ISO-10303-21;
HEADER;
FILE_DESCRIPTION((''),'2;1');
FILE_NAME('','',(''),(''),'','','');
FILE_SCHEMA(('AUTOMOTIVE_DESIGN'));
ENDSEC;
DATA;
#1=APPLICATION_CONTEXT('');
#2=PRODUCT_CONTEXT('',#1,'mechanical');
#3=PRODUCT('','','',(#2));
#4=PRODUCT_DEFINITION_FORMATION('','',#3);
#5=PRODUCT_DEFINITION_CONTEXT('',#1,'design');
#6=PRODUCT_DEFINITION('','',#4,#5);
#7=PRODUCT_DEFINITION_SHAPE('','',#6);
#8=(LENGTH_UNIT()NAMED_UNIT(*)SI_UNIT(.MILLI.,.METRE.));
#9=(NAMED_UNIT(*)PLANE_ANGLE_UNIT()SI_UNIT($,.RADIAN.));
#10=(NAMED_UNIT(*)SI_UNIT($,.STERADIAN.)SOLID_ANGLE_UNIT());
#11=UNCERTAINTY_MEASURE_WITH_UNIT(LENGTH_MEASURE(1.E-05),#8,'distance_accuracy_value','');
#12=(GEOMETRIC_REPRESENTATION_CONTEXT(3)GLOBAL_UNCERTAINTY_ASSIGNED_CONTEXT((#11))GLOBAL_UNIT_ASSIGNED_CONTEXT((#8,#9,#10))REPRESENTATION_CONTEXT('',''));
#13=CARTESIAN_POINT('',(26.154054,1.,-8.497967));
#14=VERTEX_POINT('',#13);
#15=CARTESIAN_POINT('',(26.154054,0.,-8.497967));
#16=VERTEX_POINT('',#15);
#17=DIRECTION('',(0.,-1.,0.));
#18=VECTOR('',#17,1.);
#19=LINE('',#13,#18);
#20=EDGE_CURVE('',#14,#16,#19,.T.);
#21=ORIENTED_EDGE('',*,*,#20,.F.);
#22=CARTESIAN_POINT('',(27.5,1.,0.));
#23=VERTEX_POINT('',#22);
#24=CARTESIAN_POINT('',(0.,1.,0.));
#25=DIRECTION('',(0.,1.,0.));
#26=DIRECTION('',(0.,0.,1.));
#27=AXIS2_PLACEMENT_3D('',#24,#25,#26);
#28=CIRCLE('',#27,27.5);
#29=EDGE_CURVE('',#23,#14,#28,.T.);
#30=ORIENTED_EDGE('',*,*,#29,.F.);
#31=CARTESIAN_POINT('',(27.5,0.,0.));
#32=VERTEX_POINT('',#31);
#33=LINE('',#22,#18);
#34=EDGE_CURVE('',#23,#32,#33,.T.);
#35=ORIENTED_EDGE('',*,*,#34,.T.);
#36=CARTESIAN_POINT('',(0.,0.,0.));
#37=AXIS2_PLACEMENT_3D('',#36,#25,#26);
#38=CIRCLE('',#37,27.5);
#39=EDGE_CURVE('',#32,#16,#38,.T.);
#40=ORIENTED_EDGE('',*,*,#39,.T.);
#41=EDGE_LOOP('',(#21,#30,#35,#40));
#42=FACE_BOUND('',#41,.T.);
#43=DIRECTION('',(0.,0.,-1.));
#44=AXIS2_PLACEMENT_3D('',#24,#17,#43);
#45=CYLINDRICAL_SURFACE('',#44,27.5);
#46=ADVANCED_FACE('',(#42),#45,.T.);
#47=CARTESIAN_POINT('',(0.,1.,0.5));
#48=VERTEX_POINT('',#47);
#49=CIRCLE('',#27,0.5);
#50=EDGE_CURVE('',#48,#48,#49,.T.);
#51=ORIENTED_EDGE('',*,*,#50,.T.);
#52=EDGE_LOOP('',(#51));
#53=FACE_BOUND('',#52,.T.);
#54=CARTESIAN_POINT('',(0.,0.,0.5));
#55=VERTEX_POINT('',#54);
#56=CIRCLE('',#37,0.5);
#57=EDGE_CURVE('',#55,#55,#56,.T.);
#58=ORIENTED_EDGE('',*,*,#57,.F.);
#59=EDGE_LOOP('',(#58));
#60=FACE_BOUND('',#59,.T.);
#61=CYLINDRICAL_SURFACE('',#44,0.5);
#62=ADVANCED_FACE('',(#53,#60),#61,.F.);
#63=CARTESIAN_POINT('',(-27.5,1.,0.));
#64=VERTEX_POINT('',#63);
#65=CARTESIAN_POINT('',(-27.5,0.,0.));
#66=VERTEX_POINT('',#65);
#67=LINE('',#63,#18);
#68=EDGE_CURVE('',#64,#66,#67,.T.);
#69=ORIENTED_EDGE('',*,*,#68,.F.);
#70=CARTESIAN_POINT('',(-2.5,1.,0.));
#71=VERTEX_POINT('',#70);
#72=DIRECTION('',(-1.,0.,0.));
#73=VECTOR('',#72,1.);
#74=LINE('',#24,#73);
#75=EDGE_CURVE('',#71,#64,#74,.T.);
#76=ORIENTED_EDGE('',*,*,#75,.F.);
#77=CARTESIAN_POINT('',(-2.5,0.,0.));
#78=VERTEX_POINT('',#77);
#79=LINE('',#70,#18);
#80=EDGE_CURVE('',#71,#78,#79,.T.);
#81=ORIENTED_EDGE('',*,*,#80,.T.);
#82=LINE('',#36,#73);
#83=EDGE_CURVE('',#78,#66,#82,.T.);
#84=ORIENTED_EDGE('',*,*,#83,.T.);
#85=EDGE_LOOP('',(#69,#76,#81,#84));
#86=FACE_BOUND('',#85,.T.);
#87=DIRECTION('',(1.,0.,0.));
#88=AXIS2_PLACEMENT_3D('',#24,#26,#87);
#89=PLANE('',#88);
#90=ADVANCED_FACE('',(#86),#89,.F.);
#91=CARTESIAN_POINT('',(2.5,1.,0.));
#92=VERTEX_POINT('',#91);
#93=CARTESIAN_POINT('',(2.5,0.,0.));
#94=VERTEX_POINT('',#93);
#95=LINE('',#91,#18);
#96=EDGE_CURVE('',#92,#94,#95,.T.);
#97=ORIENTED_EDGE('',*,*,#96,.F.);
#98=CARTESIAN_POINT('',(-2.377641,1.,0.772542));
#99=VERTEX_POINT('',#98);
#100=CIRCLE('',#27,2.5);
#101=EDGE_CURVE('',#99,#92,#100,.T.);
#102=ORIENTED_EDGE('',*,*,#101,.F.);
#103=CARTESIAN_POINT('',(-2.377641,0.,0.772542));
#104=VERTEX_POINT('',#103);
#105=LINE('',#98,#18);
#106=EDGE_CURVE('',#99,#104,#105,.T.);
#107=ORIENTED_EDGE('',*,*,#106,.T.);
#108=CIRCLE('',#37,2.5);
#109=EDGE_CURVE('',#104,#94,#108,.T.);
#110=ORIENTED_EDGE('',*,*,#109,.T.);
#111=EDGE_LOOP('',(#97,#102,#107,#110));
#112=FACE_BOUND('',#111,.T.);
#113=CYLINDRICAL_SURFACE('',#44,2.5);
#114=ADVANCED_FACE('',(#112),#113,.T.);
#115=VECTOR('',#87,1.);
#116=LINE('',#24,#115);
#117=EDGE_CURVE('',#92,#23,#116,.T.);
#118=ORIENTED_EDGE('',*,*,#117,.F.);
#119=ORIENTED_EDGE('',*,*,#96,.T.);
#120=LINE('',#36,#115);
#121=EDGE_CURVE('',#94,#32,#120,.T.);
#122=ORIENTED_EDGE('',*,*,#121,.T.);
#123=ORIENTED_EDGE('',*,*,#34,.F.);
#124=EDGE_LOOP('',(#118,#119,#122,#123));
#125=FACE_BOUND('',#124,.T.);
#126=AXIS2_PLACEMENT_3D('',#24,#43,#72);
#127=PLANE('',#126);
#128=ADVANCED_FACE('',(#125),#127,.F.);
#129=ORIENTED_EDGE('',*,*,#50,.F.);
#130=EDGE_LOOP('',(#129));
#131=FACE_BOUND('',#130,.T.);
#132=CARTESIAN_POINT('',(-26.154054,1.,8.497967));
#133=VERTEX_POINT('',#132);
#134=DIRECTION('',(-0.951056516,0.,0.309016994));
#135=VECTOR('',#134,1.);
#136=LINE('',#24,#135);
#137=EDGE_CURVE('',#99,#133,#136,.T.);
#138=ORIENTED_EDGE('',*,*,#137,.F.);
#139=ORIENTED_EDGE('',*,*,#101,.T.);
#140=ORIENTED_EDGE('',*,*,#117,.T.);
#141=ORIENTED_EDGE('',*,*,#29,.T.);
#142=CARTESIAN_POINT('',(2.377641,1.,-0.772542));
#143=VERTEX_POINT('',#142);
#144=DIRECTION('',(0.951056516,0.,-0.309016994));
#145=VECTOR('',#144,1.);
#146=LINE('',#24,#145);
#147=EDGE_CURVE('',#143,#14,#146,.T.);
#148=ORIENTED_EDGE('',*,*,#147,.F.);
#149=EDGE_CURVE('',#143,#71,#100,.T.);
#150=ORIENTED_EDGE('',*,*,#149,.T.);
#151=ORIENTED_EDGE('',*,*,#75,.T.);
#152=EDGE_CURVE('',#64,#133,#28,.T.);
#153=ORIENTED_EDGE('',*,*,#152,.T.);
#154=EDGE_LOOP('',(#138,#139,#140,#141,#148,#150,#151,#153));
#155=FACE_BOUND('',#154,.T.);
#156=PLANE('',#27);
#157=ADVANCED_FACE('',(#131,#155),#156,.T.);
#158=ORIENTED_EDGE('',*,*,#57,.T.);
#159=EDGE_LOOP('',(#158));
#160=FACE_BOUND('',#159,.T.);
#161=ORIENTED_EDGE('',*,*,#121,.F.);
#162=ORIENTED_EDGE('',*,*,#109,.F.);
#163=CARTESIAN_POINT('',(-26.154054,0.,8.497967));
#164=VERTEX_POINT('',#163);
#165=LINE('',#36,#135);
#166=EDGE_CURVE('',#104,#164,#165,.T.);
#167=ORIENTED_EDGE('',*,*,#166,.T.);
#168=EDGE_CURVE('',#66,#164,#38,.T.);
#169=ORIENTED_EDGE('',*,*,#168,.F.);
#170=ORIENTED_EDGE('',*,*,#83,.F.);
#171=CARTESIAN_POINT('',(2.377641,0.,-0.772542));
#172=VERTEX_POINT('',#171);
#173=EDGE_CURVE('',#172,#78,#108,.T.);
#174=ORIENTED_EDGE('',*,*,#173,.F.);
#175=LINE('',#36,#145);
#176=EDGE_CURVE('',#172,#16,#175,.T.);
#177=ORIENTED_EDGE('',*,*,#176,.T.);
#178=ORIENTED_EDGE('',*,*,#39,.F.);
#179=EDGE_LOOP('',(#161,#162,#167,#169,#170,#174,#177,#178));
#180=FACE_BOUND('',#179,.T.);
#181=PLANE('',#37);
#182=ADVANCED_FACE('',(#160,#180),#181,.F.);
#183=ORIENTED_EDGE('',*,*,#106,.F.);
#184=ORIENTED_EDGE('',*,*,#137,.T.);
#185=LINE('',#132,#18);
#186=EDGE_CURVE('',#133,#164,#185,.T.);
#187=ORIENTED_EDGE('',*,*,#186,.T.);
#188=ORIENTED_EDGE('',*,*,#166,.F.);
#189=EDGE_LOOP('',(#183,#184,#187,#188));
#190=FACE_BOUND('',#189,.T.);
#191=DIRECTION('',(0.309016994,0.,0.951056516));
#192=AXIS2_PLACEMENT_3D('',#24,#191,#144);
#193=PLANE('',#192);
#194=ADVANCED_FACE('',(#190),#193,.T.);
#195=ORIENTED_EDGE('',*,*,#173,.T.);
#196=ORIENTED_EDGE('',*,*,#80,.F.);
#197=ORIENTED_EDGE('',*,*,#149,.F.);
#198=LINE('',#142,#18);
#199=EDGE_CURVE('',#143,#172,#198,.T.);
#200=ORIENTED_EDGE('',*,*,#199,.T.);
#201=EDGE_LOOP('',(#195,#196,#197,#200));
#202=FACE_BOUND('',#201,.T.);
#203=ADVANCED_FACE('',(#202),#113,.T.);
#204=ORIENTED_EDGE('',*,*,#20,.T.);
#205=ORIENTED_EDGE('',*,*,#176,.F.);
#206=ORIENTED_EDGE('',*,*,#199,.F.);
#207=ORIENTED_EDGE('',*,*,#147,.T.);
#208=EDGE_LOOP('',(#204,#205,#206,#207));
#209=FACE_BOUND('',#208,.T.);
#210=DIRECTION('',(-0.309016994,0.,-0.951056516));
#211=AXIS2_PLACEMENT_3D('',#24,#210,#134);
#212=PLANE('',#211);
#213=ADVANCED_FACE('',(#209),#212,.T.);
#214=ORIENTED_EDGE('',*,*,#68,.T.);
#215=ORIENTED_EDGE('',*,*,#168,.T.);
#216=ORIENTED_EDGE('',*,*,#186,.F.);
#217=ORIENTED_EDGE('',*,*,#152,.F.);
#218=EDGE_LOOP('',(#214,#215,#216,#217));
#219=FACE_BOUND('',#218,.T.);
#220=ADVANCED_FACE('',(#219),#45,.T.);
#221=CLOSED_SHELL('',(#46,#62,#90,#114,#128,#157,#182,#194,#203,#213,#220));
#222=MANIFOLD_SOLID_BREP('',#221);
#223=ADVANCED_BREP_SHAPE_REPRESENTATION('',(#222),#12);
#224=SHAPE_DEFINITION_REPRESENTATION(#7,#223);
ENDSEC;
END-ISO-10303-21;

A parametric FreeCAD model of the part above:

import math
import FreeCAD as App
import Part
import Sketcher

V = App.Vector
Q = App.Units.Quantity

doc = App.newDocument("Part")
body = doc.addObject("PartDesign::Body", "Body")

# Sketch on XZ plane
sketch1 = body.newObject("Sketcher::SketchObject", "Sketch")
sketch1.AttachmentSupport = (doc.getObject("XZ_Plane"), [""])
sketch1.MapMode = "FlatFace"
sketch1.addGeometry([
    Part.LineSegment(V(-26.2, 8.5, 0), V(-2.4, 0.8, 0)),  # 0
    Part.ArcOfCircle(Part.Circle(V(0, 0, 0), V(0, 0, 1), 2.5), math.radians(0), math.radians(162)),  # 1
    Part.LineSegment(V(2.5, 0, 0), V(27.5, 0, 0)),  # 2
    Part.ArcOfCircle(Part.Circle(V(0, 0, 0), V(0, 0, 1), 27.5), math.radians(-18), math.radians(0)),  # 3
    Part.LineSegment(V(26.2, -8.5, 0), V(2.4, -0.8, 0)),  # 4
    Part.ArcOfCircle(Part.Circle(V(0, 0, 0), V(0, 0, 1), 2.5), math.radians(180), math.radians(342)),  # 5
    Part.LineSegment(V(-2.5, 0, 0), V(-27.5, 0, 0)),  # 6
    Part.ArcOfCircle(Part.Circle(V(0, 0, 0), V(0, 0, 1), 27.5), math.radians(162), math.radians(180)),  # 7
    Part.Circle(V(0, 0, 0), V(0, 0, 1), 0.5),  # 8
], False)
sketch1.addConstraint([
    Sketcher.Constraint("Coincident", 0, 2, 1, 2),
    Sketcher.Constraint("Coincident", 1, 1, 2, 1),
    Sketcher.Constraint("Coincident", 2, 2, 3, 2),
    Sketcher.Constraint("Coincident", 3, 1, 4, 1),
    Sketcher.Constraint("Coincident", 4, 2, 5, 2),
    Sketcher.Constraint("Coincident", 5, 1, 6, 1),
    Sketcher.Constraint("Coincident", 6, 2, 7, 2),
    Sketcher.Constraint("Coincident", 7, 1, 0, 1),
    Sketcher.Constraint("Horizontal", 2),
    Sketcher.Constraint("Horizontal", 6),
    Sketcher.Constraint("Coincident", 1, 3, -1, 1),
    Sketcher.Constraint("Coincident", 3, 3, -1, 1),
    Sketcher.Constraint("Coincident", 5, 3, -1, 1),
    Sketcher.Constraint("Coincident", 7, 3, -1, 1),
    Sketcher.Constraint("Coincident", 8, 3, -1, 1),
    Sketcher.Constraint("Equal", 1, 5),
    Sketcher.Constraint("Equal", 3, 7),
    Sketcher.Constraint("PointOnObject", 1, 1, -1),
    Sketcher.Constraint("PointOnObject", 5, 1, -1),
    Sketcher.Constraint("Parallel", 0, 4),
    Sketcher.Constraint("Diameter", 8, Q("1 mm")),
    Sketcher.Constraint("Radius", 1, Q("2.5 mm")),
    Sketcher.Constraint("Radius", 3, Q("27.5 mm")),
    Sketcher.Constraint("Angle", 0, Q("-18 deg")),
    Sketcher.Constraint("DistanceX", 0, 2, -1, 1, Q("2.377641 mm")),
    Sketcher.Constraint("DistanceX", -1, 1, 4, 2, Q("2.377641 mm")),
])
pad1 = body.newObject("PartDesign::Pad", "Pad")
pad1.Profile = sketch1
pad1.Length = 1
pad1.Reversed = True

doc.recompute()
